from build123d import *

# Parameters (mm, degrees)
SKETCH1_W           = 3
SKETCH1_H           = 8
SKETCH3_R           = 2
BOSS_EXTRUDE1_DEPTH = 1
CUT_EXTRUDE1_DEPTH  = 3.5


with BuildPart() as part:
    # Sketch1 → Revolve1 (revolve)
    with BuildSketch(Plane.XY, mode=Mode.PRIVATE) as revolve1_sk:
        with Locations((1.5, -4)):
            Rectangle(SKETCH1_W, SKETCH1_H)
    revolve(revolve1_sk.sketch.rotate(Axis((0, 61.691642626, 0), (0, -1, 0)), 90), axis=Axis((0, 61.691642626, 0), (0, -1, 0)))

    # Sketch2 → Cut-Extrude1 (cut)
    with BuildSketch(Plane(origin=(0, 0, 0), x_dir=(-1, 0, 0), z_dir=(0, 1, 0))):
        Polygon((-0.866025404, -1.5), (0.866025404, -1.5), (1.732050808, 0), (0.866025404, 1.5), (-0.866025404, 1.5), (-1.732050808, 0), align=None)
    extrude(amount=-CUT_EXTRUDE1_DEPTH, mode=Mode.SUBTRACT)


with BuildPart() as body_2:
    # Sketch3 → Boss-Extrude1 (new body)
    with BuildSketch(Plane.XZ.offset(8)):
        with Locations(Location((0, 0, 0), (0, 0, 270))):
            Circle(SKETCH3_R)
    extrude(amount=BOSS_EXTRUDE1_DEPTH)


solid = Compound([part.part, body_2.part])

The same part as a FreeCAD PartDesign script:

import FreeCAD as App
import Part
import Sketcher
from FreeCAD import Vector
Q = App.Units.Quantity

doc = App.newDocument("Part")
body = doc.addObject("PartDesign::Body", "Body")

sketch1 = body.newObject("Sketcher::SketchObject", "Sketch")
sketch1.AttachmentSupport = (doc.getObject("XY_Plane"), [""])
sketch1.MapMode = "FlatFace"
sketch1.addGeometry([
    Part.LineSegment(Vector(0, 0, 0), Vector(0, -8, 0)),
    Part.LineSegment(Vector(0, -8, 0), Vector(3, -8, 0)),
    Part.LineSegment(Vector(3, -8, 0), Vector(3, 0, 0)),
    Part.LineSegment(Vector(3, 0, 0), Vector(0, 0, 0)),
], False)
sketch1.addConstraint([
    Sketcher.Constraint("Coincident", 0, 2, 1, 1),
    Sketcher.Constraint("Coincident", 1, 2, 2, 1),
    Sketcher.Constraint("Coincident", 2, 2, 3, 1),
    Sketcher.Constraint("Coincident", 3, 2, 0, 1),
    Sketcher.Constraint("Vertical", 0),
    Sketcher.Constraint("Horizontal", 1),
    Sketcher.Constraint("Vertical", 2),
    Sketcher.Constraint("Horizontal", 3),
    Sketcher.Constraint("Coincident", 3, 2, -1, 1),
    Sketcher.Constraint("DistanceX", 1, 1, 1, 2, 3.0),
    Sketcher.Constraint("DistanceY", 0, 2, 0, 1, 8.0),
])
revolution = body.newObject("PartDesign::Revolution", "Revolution")
revolution.Profile = sketch1
revolution.ReferenceAxis = (sketch1, ["V_Axis"])
revolution.Angle = 360

sketch2 = body.newObject("Sketcher::SketchObject", "Sketch001")
sketch2.AttachmentSupport = (doc.getObject("XZ_Plane"), [""])
sketch2.MapMode = "FlatFace"
sketch2.addGeometry([
    Part.LineSegment(Vector(0.9, -1.5, 0), Vector(-0.9, -1.5, 0)),
    Part.LineSegment(Vector(-0.9, -1.5, 0), Vector(-1.7, 0, 0)),
    Part.LineSegment(Vector(-1.7, 0, 0), Vector(-0.9, 1.5, 0)),
    Part.LineSegment(Vector(-0.9, 1.5, 0), Vector(0.9, 1.5, 0)),
    Part.LineSegment(Vector(0.9, 1.5, 0), Vector(1.7, 0, 0)),
    Part.LineSegment(Vector(1.7, 0, 0), Vector(0.9, -1.5, 0)),
], False)
sketch2.addConstraint([
    Sketcher.Constraint("Coincident", 0, 2, 1, 1),
    Sketcher.Constraint("Coincident", 1, 2, 2, 1),
    Sketcher.Constraint("Coincident", 2, 2, 3, 1),
    Sketcher.Constraint("Coincident", 3, 2, 4, 1),
    Sketcher.Constraint("Coincident", 4, 2, 5, 1),
    Sketcher.Constraint("Coincident", 5, 2, 0, 1),
    Sketcher.Constraint("Horizontal", 0),
    Sketcher.Constraint("Horizontal", 3),
    Sketcher.Constraint("Symmetric", 0, 2, 3, 2, -1, 1),
    Sketcher.Constraint("Symmetric", 1, 2, 4, 2, -1, 1),
    Sketcher.Constraint("PointOnObject", 1, 2, -1),
    Sketcher.Constraint("Parallel", 2, 5),
    Sketcher.Constraint("Vertical", 0, 2, 2, 2),
    Sketcher.Constraint("Angle", 1, Q("120 deg")),
    Sketcher.Constraint("DistanceY", 0, 2, 2, 2, 3.0),
    Sketcher.Constraint("DistanceX", 0, 2, 0, 1, 1.732051),
])
pocket1 = body.newObject("PartDesign::Pocket", "Pocket")
pocket1.Profile = sketch2
pocket1.Length = 3.5
pocket1.Reversed = True
body2 = doc.addObject("PartDesign::Body", "Body001")

sketch3 = body2.newObject("Sketcher::SketchObject", "Sketch002")
sketch3.AttachmentSupport = (doc.getObject("XZ_Plane001"), [""])
sketch3.MapMode = "FlatFace"
sketch3.AttachmentOffset = App.Placement(Vector(0, 0, 8), App.Rotation())
sketch3.addGeometry(Part.Circle(Vector(0, 0, 0), Vector(0, 0, 1), 2), False)
sketch3.addConstraint([
    Sketcher.Constraint("Coincident", 0, 3, -1, 1),
    Sketcher.Constraint("Diameter", 0, 4.0),
])
pad1 = body2.newObject("PartDesign::Pad", "Pad")
pad1.Profile = sketch3
pad1.Length = 1

doc.recompute()
